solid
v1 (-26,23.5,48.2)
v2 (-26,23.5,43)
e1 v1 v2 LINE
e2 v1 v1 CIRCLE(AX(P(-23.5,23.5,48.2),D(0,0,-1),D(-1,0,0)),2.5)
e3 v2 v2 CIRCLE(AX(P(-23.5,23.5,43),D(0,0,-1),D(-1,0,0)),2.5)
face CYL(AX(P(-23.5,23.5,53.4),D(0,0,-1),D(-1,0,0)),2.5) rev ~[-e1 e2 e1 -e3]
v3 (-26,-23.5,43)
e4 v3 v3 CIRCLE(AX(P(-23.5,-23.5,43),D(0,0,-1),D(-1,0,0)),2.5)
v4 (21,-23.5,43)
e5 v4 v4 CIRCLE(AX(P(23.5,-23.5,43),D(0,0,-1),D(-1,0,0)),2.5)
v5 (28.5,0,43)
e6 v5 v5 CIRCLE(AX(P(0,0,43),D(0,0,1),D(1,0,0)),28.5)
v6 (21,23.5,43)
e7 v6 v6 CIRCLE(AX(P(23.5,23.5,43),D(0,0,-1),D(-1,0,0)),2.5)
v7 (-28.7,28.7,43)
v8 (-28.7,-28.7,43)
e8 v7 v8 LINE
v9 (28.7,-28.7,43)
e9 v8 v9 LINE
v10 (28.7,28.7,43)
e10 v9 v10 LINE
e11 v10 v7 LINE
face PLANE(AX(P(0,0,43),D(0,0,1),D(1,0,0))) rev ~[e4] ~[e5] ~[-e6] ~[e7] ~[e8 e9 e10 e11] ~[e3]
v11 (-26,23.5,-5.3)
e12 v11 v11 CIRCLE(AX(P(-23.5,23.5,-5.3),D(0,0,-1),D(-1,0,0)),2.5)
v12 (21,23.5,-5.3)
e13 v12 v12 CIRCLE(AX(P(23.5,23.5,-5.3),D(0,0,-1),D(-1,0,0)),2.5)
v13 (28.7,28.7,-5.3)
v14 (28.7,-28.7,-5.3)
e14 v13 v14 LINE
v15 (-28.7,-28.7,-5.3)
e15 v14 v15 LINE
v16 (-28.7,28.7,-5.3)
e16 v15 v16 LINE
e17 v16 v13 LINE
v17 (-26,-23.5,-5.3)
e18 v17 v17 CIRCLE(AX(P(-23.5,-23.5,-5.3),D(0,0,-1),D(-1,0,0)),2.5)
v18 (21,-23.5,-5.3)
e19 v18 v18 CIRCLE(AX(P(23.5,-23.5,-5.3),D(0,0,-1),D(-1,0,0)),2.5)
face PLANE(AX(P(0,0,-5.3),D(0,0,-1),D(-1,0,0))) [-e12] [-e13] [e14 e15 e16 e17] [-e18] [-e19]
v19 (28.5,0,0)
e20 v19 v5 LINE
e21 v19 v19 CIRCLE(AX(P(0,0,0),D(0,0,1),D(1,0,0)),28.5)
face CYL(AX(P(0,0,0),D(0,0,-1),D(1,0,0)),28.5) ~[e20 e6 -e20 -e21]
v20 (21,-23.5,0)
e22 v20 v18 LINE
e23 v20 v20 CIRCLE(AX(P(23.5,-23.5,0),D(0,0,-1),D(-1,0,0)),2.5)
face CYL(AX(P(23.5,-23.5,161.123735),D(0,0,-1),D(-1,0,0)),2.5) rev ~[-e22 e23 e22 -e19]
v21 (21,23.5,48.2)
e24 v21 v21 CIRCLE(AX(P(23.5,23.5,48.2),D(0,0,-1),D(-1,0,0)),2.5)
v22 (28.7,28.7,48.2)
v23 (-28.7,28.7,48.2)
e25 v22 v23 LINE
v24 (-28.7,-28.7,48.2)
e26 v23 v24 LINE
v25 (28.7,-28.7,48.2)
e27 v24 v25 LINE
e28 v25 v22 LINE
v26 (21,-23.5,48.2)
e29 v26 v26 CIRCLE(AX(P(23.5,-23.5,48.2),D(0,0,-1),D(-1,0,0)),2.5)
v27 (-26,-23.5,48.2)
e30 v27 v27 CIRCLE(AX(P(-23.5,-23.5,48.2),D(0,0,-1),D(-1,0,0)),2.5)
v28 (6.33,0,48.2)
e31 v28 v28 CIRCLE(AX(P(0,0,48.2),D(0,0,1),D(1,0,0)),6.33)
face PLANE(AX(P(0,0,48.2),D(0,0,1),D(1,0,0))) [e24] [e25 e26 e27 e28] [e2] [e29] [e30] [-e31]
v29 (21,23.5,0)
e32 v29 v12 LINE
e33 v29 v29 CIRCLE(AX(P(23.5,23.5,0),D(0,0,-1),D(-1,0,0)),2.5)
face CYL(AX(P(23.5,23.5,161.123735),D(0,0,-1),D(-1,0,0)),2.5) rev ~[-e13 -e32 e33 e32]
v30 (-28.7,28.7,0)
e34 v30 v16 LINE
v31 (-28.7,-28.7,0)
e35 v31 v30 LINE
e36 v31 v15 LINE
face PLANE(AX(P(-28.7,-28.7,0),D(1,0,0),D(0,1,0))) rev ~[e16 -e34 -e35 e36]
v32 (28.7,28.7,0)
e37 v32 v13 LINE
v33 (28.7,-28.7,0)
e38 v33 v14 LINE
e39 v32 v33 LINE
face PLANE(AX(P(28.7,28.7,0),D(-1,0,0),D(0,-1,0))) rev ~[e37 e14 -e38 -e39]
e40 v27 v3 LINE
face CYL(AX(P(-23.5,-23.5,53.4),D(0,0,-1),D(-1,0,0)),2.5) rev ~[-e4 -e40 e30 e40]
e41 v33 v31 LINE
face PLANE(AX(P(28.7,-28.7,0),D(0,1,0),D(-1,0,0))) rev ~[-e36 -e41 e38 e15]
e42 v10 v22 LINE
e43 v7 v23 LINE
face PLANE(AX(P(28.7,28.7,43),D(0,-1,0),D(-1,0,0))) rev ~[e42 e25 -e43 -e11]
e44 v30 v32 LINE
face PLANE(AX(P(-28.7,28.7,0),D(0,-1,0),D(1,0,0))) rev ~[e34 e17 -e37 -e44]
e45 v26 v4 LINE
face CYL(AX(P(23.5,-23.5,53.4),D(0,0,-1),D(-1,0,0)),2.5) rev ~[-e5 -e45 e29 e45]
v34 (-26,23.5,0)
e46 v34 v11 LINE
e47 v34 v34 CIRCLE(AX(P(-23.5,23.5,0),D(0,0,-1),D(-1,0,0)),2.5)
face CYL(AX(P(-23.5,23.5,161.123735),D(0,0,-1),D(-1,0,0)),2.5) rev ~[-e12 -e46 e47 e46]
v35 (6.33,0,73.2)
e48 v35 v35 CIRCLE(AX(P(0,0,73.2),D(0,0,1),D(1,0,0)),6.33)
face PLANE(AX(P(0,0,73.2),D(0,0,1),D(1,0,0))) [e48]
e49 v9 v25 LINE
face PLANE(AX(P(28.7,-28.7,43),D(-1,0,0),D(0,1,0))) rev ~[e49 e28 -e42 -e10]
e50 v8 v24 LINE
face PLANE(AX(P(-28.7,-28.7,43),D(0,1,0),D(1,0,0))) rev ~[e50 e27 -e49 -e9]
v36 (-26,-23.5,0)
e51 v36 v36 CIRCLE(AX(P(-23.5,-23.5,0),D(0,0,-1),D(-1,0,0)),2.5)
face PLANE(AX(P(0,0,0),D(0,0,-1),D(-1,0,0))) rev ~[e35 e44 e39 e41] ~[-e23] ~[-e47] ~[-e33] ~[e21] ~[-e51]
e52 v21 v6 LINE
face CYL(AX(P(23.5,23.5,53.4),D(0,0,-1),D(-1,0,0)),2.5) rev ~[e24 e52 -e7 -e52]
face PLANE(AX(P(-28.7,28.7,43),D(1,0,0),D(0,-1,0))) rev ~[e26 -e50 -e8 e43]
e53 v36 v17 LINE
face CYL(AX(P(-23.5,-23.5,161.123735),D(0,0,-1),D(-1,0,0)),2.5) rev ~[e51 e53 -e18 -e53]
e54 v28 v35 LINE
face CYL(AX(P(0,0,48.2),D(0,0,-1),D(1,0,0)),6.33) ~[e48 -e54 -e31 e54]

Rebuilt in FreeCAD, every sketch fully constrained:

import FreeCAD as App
import Part
import Sketcher


def add_polygon(sketch, points):
    """Adds a closed chain of lines whose ends are joined by coincident constraints."""
    first, n = sketch.GeometryCount, len(points)
    for a, b in zip(points, points[1:] + points[:1]):
        sketch.addGeometry(Part.LineSegment(App.Vector(*a, 0), App.Vector(*b, 0)), False)
    for i in range(n):
        sketch.addConstraint(Sketcher.Constraint("Coincident", first + i, 2, first + (i + 1) % n, 1))

doc = App.newDocument("Part")
body = doc.addObject("PartDesign::Body", "Body")

# Sketch on XY plane
sketch1 = body.newObject("Sketcher::SketchObject", "Sketch")
sketch1.AttachmentSupport = (doc.getObject("XY_Plane"), [""])
sketch1.MapMode = "FlatFace"
sketch1.addGeometry(Part.Circle(App.Vector(0, 0, 0), App.Vector(0, 0, 1), 28), False)
sketch1.addConstraint([
    Sketcher.Constraint("Coincident", 0, 3, -1, 1),
    Sketcher.Constraint("Diameter", 0, 57.0),
])
pad1 = body.newObject("PartDesign::Pad", "Pad")
pad1.Profile = sketch1
pad1.Length = 43

# Sketch on XY plane
sketch2 = body.newObject("Sketcher::SketchObject", "Sketch001")
sketch2.AttachmentSupport = (doc.getObject("XY_Plane"), [""])
sketch2.MapMode = "FlatFace"
sketch2.AttachmentOffset = App.Placement(App.Vector(0, 0, 43), App.Rotation())
add_polygon(sketch2, [(29, 29), (-29, 29), (-29, -29), (29, -29)])  # lines 0-3
sketch2.addConstraint([
    Sketcher.Constraint("Horizontal", 0),
    Sketcher.Constraint("Vertical", 1),
    Sketcher.Constraint("Horizontal", 2),
    Sketcher.Constraint("Vertical", 3),
    Sketcher.Constraint("Symmetric", 0, 2, 2, 2, -1, 1),
    Sketcher.Constraint("Equal", 2, 1),
    Sketcher.Constraint("DistanceX", 0, 2, 0, 1, 57.4),
])
pad2 = body.newObject("PartDesign::Pad", "Pad001")
pad2.Profile = sketch2
pad2.Length = 5.2

# Sketch on XY plane
sketch3 = body.newObject("Sketcher::SketchObject", "Sketch002")
sketch3.AttachmentSupport = (doc.getObject("XY_Plane"), [""])
sketch3.MapMode = "FlatFace"
add_polygon(sketch3, [(-29, 29), (29, 29), (29, -29), (-29, -29)])  # lines 0-3
sketch3.addConstraint([
    Sketcher.Constraint("Horizontal", 0),
    Sketcher.Constraint("Vertical", 1),
    Sketcher.Constraint("Horizontal", 2),
    Sketcher.Constraint("Vertical", 3),
    Sketcher.Constraint("Symmetric", 0, 2, 2, 2, -1, 1),
    Sketcher.Constraint("Equal", 2, 1),
    Sketcher.Constraint("DistanceX", 0, 1, 0, 2, 57.4),
])
pad3 = body.newObject("PartDesign::Pad", "Pad002")
pad3.Profile = sketch3
pad3.Length = 5.3
pad3.Reversed = True

# Sketch on XY plane
sketch4 = body.newObject("Sketcher::SketchObject", "Sketch003")
sketch4.AttachmentSupport = (doc.getObject("XY_Plane"), [""])
sketch4.MapMode = "FlatFace"
sketch4.AttachmentOffset = App.Placement(App.Vector(0, 0, 48.2), App.Rotation())
sketch4.addGeometry(Part.Circle(App.Vector(0, 0, 0), App.Vector(0, 0, 1), 6), False)
sketch4.addConstraint([
    Sketcher.Constraint("Coincident", 0, 3, -1, 1),
    Sketcher.Constraint("Diameter", 0, 12.66),
])
pad4 = body.newObject("PartDesign::Pad", "Pad003")
pad4.Profile = sketch4
pad4.Length = 25

# Sketch on XY plane
sketch5 = body.newObject("Sketcher::SketchObject", "Sketch004")
sketch5.AttachmentSupport = (doc.getObject("XY_Plane"), [""])
sketch5.MapMode = "FlatFace"
sketch5.AttachmentOffset = App.Placement(App.Vector(0, 0, 48.2), App.Rotation())
sketch5.addGeometry([
    Part.Circle(App.Vector(-23.5, 23.5, 0), App.Vector(0, 0, 1), 2.5),
    Part.Circle(App.Vector(23.5, 23.5, 0), App.Vector(0, 0, 1), 2.5),
    Part.Circle(App.Vector(23.5, -23.5, 0), App.Vector(0, 0, 1), 2.5),
    Part.Circle(App.Vector(-23.5, -23.5, 0), App.Vector(0, 0, 1), 2.5),
], False)
sketch5.addConstraint([
    Sketcher.Constraint("Equal", 0, 1),
    Sketcher.Constraint("Equal", 1, 2),
    Sketcher.Constraint("Equal", 2, 3),
    Sketcher.Constraint("Symmetric", 0, 3, 2, 3, -1, 1),
    Sketcher.Constraint("Symmetric", 1, 3, 3, 3, -1, 1),
    Sketcher.Constraint("Symmetric", 0, 3, 1, 3, -2),
    Sketcher.Constraint("Diameter", 0, 5.0),
    Sketcher.Constraint("DistanceX", 0, 3, 1, 3, 47.0),
    Sketcher.Constraint("DistanceY", 2, 3, 1, 3, 47.0),
])
doc.recompute()
hole = body.newObject("PartDesign::Hole", "Hole")
hole.Profile = sketch5
hole.ThreadType = "None"
hole.Diameter = 5
hole.DepthType = "Dimension"
hole.Depth = 5.2
hole.DrillPoint = "Flat"

# Sketch on XY plane
sketch6 = body.newObject("Sketcher::SketchObject", "Sketch005")
sketch6.AttachmentSupport = (doc.getObject("XY_Plane"), [""])
sketch6.MapMode = "FlatFace"
sketch6.AttachmentOffset = App.Placement(App.Vector(0, 0, 48.2), App.Rotation())
sketch6.addGeometry([
    Part.Circle(App.Vector(-23.5, 23.5, 0), App.Vector(0, 0, 1), 2.5),
    Part.Circle(App.Vector(23.5, 23.5, 0), App.Vector(0, 0, 1), 2.5),
    Part.Circle(App.Vector(23.5, -23.5, 0), App.Vector(0, 0, 1), 2.5),
    Part.Circle(App.Vector(-23.5, -23.5, 0), App.Vector(0, 0, 1), 2.5),
], False)
sketch6.addConstraint([
    Sketcher.Constraint("Equal", 0, 1),
    Sketcher.Constraint("Equal", 1, 2),
    Sketcher.Constraint("Equal", 2, 3),
    Sketcher.Constraint("Symmetric", 0, 3, 2, 3, -1, 1),
    Sketcher.Constraint("Symmetric", 1, 3, 3, 3, -1, 1),
    Sketcher.Constraint("Symmetric", 0, 3, 1, 3, -2),
    Sketcher.Constraint("Diameter", 0, 5.0),
    Sketcher.Constraint("DistanceX", 0, 3, 1, 3, 47.0),
    Sketcher.Constraint("DistanceY", 2, 3, 1, 3, 47.0),
])
doc.recompute()
hole2 = body.newObject("PartDesign::Hole", "Hole001")
hole2.Profile = sketch6
hole2.ThreadType = "None"
hole2.Diameter = 5
hole2.DepthType = "ThroughAll"

doc.recompute()
